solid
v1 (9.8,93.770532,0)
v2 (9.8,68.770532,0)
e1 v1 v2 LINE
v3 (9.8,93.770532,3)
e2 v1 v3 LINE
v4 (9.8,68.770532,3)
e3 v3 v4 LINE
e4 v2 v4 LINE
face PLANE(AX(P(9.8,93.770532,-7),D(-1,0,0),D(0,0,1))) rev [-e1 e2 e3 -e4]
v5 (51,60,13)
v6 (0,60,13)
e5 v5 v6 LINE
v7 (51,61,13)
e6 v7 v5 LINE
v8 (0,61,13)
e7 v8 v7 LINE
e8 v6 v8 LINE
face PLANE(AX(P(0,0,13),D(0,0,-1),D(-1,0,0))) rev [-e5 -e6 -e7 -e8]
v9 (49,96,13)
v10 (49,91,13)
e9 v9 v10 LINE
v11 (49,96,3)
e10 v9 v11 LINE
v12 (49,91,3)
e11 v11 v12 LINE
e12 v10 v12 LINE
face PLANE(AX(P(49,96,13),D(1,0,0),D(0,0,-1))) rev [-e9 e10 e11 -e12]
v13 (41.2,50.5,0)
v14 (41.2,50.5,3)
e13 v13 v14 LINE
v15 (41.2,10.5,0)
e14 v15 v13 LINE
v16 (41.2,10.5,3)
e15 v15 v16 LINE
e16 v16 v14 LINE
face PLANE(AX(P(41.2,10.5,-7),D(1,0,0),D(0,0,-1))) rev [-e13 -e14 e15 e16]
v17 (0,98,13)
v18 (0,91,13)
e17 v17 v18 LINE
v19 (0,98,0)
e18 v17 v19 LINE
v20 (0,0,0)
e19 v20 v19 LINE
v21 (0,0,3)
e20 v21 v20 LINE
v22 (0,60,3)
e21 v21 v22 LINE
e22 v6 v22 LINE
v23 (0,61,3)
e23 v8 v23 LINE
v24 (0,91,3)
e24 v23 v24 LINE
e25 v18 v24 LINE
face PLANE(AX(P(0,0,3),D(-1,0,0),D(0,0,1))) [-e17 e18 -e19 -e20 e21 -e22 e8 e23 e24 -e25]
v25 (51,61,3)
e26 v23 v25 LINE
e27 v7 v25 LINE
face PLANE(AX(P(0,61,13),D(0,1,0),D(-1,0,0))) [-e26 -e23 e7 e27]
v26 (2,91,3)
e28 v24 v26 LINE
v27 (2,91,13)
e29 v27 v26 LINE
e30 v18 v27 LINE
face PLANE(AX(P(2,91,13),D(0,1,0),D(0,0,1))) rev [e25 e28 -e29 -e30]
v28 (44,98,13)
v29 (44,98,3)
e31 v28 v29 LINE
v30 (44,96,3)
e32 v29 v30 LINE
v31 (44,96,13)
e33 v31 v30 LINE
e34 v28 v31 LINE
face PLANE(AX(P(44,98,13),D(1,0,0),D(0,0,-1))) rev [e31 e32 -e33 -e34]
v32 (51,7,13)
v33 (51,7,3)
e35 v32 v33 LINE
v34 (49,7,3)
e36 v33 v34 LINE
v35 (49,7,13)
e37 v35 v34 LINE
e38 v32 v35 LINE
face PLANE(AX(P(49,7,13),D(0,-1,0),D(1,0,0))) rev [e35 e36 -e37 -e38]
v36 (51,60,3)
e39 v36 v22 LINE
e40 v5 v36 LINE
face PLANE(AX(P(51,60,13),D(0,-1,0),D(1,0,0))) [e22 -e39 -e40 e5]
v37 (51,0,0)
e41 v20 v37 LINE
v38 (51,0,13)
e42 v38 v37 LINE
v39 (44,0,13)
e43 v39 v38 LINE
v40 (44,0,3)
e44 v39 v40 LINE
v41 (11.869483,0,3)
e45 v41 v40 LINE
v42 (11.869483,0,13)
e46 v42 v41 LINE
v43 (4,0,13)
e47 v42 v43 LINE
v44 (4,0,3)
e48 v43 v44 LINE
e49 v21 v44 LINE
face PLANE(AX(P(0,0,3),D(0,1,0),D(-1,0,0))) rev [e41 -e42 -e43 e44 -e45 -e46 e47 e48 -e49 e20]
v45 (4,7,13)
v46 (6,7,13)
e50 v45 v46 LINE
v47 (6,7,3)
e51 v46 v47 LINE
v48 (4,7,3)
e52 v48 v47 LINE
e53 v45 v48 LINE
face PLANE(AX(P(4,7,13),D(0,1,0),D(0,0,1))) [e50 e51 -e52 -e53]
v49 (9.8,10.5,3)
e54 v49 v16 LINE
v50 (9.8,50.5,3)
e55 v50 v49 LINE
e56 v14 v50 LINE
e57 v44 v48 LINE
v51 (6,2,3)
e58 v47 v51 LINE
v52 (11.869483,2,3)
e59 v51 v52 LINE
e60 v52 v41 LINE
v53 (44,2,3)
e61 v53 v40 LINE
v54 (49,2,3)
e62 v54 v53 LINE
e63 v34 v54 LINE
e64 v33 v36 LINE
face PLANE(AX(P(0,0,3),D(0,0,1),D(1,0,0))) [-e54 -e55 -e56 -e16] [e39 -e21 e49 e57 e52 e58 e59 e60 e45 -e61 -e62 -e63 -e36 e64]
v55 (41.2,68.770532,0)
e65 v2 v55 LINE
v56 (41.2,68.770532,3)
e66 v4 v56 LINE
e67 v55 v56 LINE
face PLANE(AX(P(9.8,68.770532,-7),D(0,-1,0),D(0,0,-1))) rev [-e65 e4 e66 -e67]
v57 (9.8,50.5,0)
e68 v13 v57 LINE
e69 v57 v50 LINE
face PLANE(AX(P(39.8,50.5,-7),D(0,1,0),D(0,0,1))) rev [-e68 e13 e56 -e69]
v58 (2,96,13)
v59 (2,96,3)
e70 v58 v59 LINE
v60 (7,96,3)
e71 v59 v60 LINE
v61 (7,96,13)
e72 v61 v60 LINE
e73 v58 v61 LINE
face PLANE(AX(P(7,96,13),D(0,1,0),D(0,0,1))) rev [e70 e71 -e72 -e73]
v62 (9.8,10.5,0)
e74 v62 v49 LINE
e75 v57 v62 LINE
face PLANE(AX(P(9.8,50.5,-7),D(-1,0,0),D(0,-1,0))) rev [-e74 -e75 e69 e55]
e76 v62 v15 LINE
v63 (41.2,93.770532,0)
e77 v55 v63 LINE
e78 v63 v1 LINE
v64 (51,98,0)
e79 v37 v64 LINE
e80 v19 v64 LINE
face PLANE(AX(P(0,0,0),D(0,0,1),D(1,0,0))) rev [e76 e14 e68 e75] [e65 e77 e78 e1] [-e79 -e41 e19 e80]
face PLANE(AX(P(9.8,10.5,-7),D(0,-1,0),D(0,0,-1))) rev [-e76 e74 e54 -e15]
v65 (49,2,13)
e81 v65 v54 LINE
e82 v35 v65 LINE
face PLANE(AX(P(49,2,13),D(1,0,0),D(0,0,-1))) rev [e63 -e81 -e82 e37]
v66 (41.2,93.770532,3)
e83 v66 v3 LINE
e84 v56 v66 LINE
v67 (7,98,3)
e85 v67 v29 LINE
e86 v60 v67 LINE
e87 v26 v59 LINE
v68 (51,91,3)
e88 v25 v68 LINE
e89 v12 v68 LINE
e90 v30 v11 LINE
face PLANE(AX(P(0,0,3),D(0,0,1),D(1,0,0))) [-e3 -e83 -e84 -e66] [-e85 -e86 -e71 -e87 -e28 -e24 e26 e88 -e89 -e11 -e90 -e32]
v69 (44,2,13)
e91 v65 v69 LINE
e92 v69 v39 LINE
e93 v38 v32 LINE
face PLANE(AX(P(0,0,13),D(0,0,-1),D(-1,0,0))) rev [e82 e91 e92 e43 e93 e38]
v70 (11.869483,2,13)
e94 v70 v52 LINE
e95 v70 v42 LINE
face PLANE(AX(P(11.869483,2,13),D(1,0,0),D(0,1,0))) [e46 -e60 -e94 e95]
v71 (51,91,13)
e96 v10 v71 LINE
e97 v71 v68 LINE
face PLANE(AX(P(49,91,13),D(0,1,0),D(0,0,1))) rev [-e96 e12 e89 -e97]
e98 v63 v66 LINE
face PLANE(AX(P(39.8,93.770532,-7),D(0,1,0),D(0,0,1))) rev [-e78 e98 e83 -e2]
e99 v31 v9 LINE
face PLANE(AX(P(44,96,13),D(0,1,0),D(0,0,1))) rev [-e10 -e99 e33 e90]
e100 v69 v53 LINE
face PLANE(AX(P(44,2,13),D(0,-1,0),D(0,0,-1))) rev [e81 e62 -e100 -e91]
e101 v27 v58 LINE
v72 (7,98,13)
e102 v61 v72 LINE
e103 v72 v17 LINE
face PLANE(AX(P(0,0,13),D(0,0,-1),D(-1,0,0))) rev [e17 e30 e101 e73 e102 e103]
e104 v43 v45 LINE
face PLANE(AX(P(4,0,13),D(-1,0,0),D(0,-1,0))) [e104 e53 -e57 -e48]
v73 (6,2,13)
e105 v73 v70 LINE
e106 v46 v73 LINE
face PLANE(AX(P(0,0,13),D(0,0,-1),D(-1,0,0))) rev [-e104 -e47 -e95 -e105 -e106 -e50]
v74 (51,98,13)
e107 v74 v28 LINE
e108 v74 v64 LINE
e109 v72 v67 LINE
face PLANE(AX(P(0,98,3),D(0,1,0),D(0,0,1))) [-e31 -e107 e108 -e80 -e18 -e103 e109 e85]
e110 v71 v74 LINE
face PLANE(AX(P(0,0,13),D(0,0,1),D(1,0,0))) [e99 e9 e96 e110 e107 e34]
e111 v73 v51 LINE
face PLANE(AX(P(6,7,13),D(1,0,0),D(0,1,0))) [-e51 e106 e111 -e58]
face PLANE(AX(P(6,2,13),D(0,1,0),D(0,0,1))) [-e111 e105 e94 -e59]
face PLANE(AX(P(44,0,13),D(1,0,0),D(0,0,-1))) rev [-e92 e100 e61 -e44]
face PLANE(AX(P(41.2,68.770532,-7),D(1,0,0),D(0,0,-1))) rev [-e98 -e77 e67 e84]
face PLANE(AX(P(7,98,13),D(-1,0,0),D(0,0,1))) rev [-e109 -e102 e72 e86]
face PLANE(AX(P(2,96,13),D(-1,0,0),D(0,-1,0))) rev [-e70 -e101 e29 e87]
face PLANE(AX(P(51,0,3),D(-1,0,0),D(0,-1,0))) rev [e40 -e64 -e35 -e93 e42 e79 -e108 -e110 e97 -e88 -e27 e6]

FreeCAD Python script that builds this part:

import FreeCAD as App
import Part
import Sketcher
Q = App.Units.Quantity


def add_polygon(sketch, points):
    """Adds a closed chain of lines whose ends are joined by coincident constraints."""
    first, n = sketch.GeometryCount, len(points)
    for a, b in zip(points, points[1:] + points[:1]):
        sketch.addGeometry(Part.LineSegment(App.Vector(*a, 0), App.Vector(*b, 0)), False)
    for i in range(n):
        sketch.addConstraint(Sketcher.Constraint("Coincident", first + i, 2, first + (i + 1) % n, 1))

doc = App.newDocument("Part")
body = doc.addObject("PartDesign::Body", "Body")

sketch1 = body.newObject("Sketcher::SketchObject", "Sketch")
sketch1.AttachmentSupport = (doc.getObject("XY_Plane"), [""])
sketch1.MapMode = "FlatFace"
add_polygon(sketch1, [(0, 98), (0, 0), (51, 0), (51, 98)])
sketch1.addConstraint(Sketcher.Constraint("Vertical", 0))
sketch1.addConstraint(Sketcher.Constraint("Horizontal", 1))
sketch1.addConstraint(Sketcher.Constraint("Vertical", 2))
sketch1.addConstraint(Sketcher.Constraint("Horizontal", 3))
sketch1.addConstraint(Sketcher.Constraint("Coincident", 0, 2, -1, 1))
sketch1.addConstraint(Sketcher.Constraint("DistanceX", 1, 1, 1, 2, Q("51 mm")))
sketch1.addConstraint(Sketcher.Constraint("DistanceY", 0, 2, 0, 1, Q("98 mm")))
pad1 = body.newObject("PartDesign::Pad", "Pad")
pad1.Profile = sketch1
pad1.Length = 3

sketch2 = body.newObject("Sketcher::SketchObject", "Sketch001")
sketch2.AttachmentSupport = (doc.getObject("XY_Plane"), [""])
sketch2.MapMode = "FlatFace"
sketch2.AttachmentOffset = App.Placement(App.Vector(0, 0, 3), App.Rotation())
add_polygon(sketch2, [(7, 98), (0, 98), (0, 91), (2, 91), (2, 96), (7, 96)])
add_polygon(sketch2, [(51, 98), (44, 98), (44, 96), (49, 96), (49, 91), (51, 91)])
add_polygon(sketch2, [(44, 0), (51, 0), (51, 7), (49, 7), (49, 2), (44, 2)])
sketch2.addConstraint(Sketcher.Constraint("Horizontal", 0))
sketch2.addConstraint(Sketcher.Constraint("Vertical", 1))
sketch2.addConstraint(Sketcher.Constraint("Horizontal", 2))
sketch2.addConstraint(Sketcher.Constraint("Vertical", 3))
sketch2.addConstraint(Sketcher.Constraint("Horizontal", 4))
sketch2.addConstraint(Sketcher.Constraint("Vertical", 5))
sketch2.addConstraint(Sketcher.Constraint("Horizontal", 6))
sketch2.addConstraint(Sketcher.Constraint("Vertical", 7))
sketch2.addConstraint(Sketcher.Constraint("Horizontal", 8))
sketch2.addConstraint(Sketcher.Constraint("Vertical", 9))
sketch2.addConstraint(Sketcher.Constraint("Horizontal", 10))
sketch2.addConstraint(Sketcher.Constraint("Vertical", 11))
sketch2.addConstraint(Sketcher.Constraint("Horizontal", 12))
sketch2.addConstraint(Sketcher.Constraint("Vertical", 13))
sketch2.addConstraint(Sketcher.Constraint("Horizontal", 14))
sketch2.addConstraint(Sketcher.Constraint("Vertical", 15))
sketch2.addConstraint(Sketcher.Constraint("Horizontal", 16))
sketch2.addConstraint(Sketcher.Constraint("Vertical", 17))
sketch2.addConstraint(Sketcher.Constraint("PointOnObject", 0, 2, -2))
sketch2.addConstraint(Sketcher.Constraint("PointOnObject", 12, 2, -1))
sketch2.addConstraint(Sketcher.Constraint("Horizontal", 5, 2, 6, 2))
sketch2.addConstraint(Sketcher.Constraint("Horizontal", 4, 2, 7, 2))
sketch2.addConstraint(Sketcher.Constraint("Horizontal", 2, 2, 9, 2))
sketch2.addConstraint(Sketcher.Constraint("Vertical", 11, 2, 12, 2))
sketch2.addConstraint(Sketcher.Constraint("Vertical", 9, 2, 14, 2))
sketch2.addConstraint(Sketcher.Constraint("Vertical", 7, 2, 16, 2))
sketch2.addConstraint(Sketcher.Constraint("Equal", 0, 6))
sketch2.addConstraint(Sketcher.Constraint("Equal", 4, 8))
sketch2.addConstraint(Sketcher.Constraint("Equal", 12, 1))
sketch2.addConstraint(Sketcher.Constraint("Equal", 16, 3))
sketch2.addConstraint(Sketcher.Constraint("Equal", 11, 13))
sketch2.addConstraint(Sketcher.Constraint("Equal", 9, 15))
sketch2.addConstraint(Sketcher.Constraint("DistanceX", 0, 2, 0, 1, Q("7 mm")))
sketch2.addConstraint(Sketcher.Constraint("DistanceX", 2, 1, 2, 2, Q("2 mm")))
sketch2.addConstraint(Sketcher.Constraint("DistanceY", -1, 1, 0, 2, Q("98 mm")))
sketch2.addConstraint(Sketcher.Constraint("DistanceX", -1, 1, 6, 2, Q("44 mm")))
pad2 = body.newObject("PartDesign::Pad", "Pad001")
pad2.Profile = sketch2
pad2.Length = 10

sketch3 = body.newObject("Sketcher::SketchObject", "Sketch002")
sketch3.AttachmentSupport = (doc.getObject("XY_Plane"), [""])
sketch3.MapMode = "FlatFace"
sketch3.AttachmentOffset = App.Placement(App.Vector(0, 0, 3), App.Rotation())
add_polygon(sketch3, [(4, 7), (4, 0), (11.9, 0), (11.9, 2), (6, 2), (6, 7)])
sketch3.addConstraint(Sketcher.Constraint("Vertical", 0))
sketch3.addConstraint(Sketcher.Constraint("Horizontal", 1))
sketch3.addConstraint(Sketcher.Constraint("Vertical", 2))
sketch3.addConstraint(Sketcher.Constraint("Horizontal", 3))
sketch3.addConstraint(Sketcher.Constraint("Vertical", 4))
sketch3.addConstraint(Sketcher.Constraint("Horizontal", 5))
sketch3.addConstraint(Sketcher.Constraint("PointOnObject", 0, 2, -1))
sketch3.addConstraint(Sketcher.Constraint("Equal", 5, 2))
sketch3.addConstraint(Sketcher.Constraint("DistanceX", 5, 2, 5, 1, Q("2 mm")))
sketch3.addConstraint(Sketcher.Constraint("DistanceY", 0, 2, 0, 1, Q("7 mm")))
sketch3.addConstraint(Sketcher.Constraint("DistanceX", -1, 1, 0, 2, Q("4 mm")))
sketch3.addConstraint(Sketcher.Constraint("DistanceX", 1, 1, 1, 2, Q("7.869483 mm")))
pad3 = body.newObject("PartDesign::Pad", "Pad002")
pad3.Profile = sketch3
pad3.Length = 10

sketch4 = body.newObject("Sketcher::SketchObject", "Sketch003")
sketch4.AttachmentSupport = (doc.getObject("XY_Plane"), [""])
sketch4.MapMode = "FlatFace"
sketch4.AttachmentOffset = App.Placement(App.Vector(0, 0, 3), App.Rotation())
add_polygon(sketch4, [(0, 61), (0, 60), (51, 60), (51, 61)])
sketch4.addConstraint(Sketcher.Constraint("Vertical", 0))
sketch4.addConstraint(Sketcher.Constraint("Horizontal", 1))
sketch4.addConstraint(Sketcher.Constraint("Vertical", 2))
sketch4.addConstraint(Sketcher.Constraint("Horizontal", 3))
sketch4.addConstraint(Sketcher.Constraint("PointOnObject", 0, 2, -2))
sketch4.addConstraint(Sketcher.Constraint("DistanceX", 1, 1, 1, 2, Q("51 mm")))
sketch4.addConstraint(Sketcher.Constraint("DistanceY", 0, 2, 0, 1, Q("1 mm")))
sketch4.addConstraint(Sketcher.Constraint("DistanceY", -1, 1, 0, 2, Q("60 mm")))
pad4 = body.newObject("PartDesign::Pad", "Pad003")
pad4.Profile = sketch4
pad4.Length = 10

sketch5 = body.newObject("Sketcher::SketchObject", "Sketch004")
sketch5.AttachmentSupport = (doc.getObject("XY_Plane"), [""])
sketch5.MapMode = "FlatFace"
sketch5.AttachmentOffset = App.Placement(App.Vector(0, 0, 3), App.Rotation())
add_polygon(sketch5, [(10, 94), (10, 69), (41, 69), (41, 94)])
add_polygon(sketch5, [(10, 50), (10, 10), (41, 10), (41, 50)])
sketch5.addConstraint(Sketcher.Constraint("Vertical", 0))
sketch5.addConstraint(Sketcher.Constraint("Horizontal", 1))
sketch5.addConstraint(Sketcher.Constraint("Vertical", 2))
sketch5.addConstraint(Sketcher.Constraint("Horizontal", 3))
sketch5.addConstraint(Sketcher.Constraint("Vertical", 4))
sketch5.addConstraint(Sketcher.Constraint("Horizontal", 5))
sketch5.addConstraint(Sketcher.Constraint("Vertical", 6))
sketch5.addConstraint(Sketcher.Constraint("Horizontal", 7))
sketch5.addConstraint(Sketcher.Constraint("Vertical", 3, 2, 4, 2))
sketch5.addConstraint(Sketcher.Constraint("Vertical", 2, 2, 5, 2))
sketch5.addConstraint(Sketcher.Constraint("DistanceY", 0, 2, 0, 1, Q("25 mm")))
sketch5.addConstraint(Sketcher.Constraint("DistanceY", 4, 2, 4, 1, Q("40 mm")))
sketch5.addConstraint(Sketcher.Constraint("DistanceX", 1, 1, 1, 2, Q("31.4 mm")))
sketch5.addConstraint(Sketcher.Constraint("DistanceX", -1, 1, 0, 2, Q("9.8 mm")))
sketch5.addConstraint(Sketcher.Constraint("DistanceY", -1, 1, 4, 2, Q("10.5 mm")))
sketch5.addConstraint(Sketcher.Constraint("DistanceY", -1, 1, 0, 2, Q("68.770532 mm")))
pocket1 = body.newObject("PartDesign::Pocket", "Pocket")
pocket1.Profile = sketch5
pocket1.Length = 10

doc.recompute()
